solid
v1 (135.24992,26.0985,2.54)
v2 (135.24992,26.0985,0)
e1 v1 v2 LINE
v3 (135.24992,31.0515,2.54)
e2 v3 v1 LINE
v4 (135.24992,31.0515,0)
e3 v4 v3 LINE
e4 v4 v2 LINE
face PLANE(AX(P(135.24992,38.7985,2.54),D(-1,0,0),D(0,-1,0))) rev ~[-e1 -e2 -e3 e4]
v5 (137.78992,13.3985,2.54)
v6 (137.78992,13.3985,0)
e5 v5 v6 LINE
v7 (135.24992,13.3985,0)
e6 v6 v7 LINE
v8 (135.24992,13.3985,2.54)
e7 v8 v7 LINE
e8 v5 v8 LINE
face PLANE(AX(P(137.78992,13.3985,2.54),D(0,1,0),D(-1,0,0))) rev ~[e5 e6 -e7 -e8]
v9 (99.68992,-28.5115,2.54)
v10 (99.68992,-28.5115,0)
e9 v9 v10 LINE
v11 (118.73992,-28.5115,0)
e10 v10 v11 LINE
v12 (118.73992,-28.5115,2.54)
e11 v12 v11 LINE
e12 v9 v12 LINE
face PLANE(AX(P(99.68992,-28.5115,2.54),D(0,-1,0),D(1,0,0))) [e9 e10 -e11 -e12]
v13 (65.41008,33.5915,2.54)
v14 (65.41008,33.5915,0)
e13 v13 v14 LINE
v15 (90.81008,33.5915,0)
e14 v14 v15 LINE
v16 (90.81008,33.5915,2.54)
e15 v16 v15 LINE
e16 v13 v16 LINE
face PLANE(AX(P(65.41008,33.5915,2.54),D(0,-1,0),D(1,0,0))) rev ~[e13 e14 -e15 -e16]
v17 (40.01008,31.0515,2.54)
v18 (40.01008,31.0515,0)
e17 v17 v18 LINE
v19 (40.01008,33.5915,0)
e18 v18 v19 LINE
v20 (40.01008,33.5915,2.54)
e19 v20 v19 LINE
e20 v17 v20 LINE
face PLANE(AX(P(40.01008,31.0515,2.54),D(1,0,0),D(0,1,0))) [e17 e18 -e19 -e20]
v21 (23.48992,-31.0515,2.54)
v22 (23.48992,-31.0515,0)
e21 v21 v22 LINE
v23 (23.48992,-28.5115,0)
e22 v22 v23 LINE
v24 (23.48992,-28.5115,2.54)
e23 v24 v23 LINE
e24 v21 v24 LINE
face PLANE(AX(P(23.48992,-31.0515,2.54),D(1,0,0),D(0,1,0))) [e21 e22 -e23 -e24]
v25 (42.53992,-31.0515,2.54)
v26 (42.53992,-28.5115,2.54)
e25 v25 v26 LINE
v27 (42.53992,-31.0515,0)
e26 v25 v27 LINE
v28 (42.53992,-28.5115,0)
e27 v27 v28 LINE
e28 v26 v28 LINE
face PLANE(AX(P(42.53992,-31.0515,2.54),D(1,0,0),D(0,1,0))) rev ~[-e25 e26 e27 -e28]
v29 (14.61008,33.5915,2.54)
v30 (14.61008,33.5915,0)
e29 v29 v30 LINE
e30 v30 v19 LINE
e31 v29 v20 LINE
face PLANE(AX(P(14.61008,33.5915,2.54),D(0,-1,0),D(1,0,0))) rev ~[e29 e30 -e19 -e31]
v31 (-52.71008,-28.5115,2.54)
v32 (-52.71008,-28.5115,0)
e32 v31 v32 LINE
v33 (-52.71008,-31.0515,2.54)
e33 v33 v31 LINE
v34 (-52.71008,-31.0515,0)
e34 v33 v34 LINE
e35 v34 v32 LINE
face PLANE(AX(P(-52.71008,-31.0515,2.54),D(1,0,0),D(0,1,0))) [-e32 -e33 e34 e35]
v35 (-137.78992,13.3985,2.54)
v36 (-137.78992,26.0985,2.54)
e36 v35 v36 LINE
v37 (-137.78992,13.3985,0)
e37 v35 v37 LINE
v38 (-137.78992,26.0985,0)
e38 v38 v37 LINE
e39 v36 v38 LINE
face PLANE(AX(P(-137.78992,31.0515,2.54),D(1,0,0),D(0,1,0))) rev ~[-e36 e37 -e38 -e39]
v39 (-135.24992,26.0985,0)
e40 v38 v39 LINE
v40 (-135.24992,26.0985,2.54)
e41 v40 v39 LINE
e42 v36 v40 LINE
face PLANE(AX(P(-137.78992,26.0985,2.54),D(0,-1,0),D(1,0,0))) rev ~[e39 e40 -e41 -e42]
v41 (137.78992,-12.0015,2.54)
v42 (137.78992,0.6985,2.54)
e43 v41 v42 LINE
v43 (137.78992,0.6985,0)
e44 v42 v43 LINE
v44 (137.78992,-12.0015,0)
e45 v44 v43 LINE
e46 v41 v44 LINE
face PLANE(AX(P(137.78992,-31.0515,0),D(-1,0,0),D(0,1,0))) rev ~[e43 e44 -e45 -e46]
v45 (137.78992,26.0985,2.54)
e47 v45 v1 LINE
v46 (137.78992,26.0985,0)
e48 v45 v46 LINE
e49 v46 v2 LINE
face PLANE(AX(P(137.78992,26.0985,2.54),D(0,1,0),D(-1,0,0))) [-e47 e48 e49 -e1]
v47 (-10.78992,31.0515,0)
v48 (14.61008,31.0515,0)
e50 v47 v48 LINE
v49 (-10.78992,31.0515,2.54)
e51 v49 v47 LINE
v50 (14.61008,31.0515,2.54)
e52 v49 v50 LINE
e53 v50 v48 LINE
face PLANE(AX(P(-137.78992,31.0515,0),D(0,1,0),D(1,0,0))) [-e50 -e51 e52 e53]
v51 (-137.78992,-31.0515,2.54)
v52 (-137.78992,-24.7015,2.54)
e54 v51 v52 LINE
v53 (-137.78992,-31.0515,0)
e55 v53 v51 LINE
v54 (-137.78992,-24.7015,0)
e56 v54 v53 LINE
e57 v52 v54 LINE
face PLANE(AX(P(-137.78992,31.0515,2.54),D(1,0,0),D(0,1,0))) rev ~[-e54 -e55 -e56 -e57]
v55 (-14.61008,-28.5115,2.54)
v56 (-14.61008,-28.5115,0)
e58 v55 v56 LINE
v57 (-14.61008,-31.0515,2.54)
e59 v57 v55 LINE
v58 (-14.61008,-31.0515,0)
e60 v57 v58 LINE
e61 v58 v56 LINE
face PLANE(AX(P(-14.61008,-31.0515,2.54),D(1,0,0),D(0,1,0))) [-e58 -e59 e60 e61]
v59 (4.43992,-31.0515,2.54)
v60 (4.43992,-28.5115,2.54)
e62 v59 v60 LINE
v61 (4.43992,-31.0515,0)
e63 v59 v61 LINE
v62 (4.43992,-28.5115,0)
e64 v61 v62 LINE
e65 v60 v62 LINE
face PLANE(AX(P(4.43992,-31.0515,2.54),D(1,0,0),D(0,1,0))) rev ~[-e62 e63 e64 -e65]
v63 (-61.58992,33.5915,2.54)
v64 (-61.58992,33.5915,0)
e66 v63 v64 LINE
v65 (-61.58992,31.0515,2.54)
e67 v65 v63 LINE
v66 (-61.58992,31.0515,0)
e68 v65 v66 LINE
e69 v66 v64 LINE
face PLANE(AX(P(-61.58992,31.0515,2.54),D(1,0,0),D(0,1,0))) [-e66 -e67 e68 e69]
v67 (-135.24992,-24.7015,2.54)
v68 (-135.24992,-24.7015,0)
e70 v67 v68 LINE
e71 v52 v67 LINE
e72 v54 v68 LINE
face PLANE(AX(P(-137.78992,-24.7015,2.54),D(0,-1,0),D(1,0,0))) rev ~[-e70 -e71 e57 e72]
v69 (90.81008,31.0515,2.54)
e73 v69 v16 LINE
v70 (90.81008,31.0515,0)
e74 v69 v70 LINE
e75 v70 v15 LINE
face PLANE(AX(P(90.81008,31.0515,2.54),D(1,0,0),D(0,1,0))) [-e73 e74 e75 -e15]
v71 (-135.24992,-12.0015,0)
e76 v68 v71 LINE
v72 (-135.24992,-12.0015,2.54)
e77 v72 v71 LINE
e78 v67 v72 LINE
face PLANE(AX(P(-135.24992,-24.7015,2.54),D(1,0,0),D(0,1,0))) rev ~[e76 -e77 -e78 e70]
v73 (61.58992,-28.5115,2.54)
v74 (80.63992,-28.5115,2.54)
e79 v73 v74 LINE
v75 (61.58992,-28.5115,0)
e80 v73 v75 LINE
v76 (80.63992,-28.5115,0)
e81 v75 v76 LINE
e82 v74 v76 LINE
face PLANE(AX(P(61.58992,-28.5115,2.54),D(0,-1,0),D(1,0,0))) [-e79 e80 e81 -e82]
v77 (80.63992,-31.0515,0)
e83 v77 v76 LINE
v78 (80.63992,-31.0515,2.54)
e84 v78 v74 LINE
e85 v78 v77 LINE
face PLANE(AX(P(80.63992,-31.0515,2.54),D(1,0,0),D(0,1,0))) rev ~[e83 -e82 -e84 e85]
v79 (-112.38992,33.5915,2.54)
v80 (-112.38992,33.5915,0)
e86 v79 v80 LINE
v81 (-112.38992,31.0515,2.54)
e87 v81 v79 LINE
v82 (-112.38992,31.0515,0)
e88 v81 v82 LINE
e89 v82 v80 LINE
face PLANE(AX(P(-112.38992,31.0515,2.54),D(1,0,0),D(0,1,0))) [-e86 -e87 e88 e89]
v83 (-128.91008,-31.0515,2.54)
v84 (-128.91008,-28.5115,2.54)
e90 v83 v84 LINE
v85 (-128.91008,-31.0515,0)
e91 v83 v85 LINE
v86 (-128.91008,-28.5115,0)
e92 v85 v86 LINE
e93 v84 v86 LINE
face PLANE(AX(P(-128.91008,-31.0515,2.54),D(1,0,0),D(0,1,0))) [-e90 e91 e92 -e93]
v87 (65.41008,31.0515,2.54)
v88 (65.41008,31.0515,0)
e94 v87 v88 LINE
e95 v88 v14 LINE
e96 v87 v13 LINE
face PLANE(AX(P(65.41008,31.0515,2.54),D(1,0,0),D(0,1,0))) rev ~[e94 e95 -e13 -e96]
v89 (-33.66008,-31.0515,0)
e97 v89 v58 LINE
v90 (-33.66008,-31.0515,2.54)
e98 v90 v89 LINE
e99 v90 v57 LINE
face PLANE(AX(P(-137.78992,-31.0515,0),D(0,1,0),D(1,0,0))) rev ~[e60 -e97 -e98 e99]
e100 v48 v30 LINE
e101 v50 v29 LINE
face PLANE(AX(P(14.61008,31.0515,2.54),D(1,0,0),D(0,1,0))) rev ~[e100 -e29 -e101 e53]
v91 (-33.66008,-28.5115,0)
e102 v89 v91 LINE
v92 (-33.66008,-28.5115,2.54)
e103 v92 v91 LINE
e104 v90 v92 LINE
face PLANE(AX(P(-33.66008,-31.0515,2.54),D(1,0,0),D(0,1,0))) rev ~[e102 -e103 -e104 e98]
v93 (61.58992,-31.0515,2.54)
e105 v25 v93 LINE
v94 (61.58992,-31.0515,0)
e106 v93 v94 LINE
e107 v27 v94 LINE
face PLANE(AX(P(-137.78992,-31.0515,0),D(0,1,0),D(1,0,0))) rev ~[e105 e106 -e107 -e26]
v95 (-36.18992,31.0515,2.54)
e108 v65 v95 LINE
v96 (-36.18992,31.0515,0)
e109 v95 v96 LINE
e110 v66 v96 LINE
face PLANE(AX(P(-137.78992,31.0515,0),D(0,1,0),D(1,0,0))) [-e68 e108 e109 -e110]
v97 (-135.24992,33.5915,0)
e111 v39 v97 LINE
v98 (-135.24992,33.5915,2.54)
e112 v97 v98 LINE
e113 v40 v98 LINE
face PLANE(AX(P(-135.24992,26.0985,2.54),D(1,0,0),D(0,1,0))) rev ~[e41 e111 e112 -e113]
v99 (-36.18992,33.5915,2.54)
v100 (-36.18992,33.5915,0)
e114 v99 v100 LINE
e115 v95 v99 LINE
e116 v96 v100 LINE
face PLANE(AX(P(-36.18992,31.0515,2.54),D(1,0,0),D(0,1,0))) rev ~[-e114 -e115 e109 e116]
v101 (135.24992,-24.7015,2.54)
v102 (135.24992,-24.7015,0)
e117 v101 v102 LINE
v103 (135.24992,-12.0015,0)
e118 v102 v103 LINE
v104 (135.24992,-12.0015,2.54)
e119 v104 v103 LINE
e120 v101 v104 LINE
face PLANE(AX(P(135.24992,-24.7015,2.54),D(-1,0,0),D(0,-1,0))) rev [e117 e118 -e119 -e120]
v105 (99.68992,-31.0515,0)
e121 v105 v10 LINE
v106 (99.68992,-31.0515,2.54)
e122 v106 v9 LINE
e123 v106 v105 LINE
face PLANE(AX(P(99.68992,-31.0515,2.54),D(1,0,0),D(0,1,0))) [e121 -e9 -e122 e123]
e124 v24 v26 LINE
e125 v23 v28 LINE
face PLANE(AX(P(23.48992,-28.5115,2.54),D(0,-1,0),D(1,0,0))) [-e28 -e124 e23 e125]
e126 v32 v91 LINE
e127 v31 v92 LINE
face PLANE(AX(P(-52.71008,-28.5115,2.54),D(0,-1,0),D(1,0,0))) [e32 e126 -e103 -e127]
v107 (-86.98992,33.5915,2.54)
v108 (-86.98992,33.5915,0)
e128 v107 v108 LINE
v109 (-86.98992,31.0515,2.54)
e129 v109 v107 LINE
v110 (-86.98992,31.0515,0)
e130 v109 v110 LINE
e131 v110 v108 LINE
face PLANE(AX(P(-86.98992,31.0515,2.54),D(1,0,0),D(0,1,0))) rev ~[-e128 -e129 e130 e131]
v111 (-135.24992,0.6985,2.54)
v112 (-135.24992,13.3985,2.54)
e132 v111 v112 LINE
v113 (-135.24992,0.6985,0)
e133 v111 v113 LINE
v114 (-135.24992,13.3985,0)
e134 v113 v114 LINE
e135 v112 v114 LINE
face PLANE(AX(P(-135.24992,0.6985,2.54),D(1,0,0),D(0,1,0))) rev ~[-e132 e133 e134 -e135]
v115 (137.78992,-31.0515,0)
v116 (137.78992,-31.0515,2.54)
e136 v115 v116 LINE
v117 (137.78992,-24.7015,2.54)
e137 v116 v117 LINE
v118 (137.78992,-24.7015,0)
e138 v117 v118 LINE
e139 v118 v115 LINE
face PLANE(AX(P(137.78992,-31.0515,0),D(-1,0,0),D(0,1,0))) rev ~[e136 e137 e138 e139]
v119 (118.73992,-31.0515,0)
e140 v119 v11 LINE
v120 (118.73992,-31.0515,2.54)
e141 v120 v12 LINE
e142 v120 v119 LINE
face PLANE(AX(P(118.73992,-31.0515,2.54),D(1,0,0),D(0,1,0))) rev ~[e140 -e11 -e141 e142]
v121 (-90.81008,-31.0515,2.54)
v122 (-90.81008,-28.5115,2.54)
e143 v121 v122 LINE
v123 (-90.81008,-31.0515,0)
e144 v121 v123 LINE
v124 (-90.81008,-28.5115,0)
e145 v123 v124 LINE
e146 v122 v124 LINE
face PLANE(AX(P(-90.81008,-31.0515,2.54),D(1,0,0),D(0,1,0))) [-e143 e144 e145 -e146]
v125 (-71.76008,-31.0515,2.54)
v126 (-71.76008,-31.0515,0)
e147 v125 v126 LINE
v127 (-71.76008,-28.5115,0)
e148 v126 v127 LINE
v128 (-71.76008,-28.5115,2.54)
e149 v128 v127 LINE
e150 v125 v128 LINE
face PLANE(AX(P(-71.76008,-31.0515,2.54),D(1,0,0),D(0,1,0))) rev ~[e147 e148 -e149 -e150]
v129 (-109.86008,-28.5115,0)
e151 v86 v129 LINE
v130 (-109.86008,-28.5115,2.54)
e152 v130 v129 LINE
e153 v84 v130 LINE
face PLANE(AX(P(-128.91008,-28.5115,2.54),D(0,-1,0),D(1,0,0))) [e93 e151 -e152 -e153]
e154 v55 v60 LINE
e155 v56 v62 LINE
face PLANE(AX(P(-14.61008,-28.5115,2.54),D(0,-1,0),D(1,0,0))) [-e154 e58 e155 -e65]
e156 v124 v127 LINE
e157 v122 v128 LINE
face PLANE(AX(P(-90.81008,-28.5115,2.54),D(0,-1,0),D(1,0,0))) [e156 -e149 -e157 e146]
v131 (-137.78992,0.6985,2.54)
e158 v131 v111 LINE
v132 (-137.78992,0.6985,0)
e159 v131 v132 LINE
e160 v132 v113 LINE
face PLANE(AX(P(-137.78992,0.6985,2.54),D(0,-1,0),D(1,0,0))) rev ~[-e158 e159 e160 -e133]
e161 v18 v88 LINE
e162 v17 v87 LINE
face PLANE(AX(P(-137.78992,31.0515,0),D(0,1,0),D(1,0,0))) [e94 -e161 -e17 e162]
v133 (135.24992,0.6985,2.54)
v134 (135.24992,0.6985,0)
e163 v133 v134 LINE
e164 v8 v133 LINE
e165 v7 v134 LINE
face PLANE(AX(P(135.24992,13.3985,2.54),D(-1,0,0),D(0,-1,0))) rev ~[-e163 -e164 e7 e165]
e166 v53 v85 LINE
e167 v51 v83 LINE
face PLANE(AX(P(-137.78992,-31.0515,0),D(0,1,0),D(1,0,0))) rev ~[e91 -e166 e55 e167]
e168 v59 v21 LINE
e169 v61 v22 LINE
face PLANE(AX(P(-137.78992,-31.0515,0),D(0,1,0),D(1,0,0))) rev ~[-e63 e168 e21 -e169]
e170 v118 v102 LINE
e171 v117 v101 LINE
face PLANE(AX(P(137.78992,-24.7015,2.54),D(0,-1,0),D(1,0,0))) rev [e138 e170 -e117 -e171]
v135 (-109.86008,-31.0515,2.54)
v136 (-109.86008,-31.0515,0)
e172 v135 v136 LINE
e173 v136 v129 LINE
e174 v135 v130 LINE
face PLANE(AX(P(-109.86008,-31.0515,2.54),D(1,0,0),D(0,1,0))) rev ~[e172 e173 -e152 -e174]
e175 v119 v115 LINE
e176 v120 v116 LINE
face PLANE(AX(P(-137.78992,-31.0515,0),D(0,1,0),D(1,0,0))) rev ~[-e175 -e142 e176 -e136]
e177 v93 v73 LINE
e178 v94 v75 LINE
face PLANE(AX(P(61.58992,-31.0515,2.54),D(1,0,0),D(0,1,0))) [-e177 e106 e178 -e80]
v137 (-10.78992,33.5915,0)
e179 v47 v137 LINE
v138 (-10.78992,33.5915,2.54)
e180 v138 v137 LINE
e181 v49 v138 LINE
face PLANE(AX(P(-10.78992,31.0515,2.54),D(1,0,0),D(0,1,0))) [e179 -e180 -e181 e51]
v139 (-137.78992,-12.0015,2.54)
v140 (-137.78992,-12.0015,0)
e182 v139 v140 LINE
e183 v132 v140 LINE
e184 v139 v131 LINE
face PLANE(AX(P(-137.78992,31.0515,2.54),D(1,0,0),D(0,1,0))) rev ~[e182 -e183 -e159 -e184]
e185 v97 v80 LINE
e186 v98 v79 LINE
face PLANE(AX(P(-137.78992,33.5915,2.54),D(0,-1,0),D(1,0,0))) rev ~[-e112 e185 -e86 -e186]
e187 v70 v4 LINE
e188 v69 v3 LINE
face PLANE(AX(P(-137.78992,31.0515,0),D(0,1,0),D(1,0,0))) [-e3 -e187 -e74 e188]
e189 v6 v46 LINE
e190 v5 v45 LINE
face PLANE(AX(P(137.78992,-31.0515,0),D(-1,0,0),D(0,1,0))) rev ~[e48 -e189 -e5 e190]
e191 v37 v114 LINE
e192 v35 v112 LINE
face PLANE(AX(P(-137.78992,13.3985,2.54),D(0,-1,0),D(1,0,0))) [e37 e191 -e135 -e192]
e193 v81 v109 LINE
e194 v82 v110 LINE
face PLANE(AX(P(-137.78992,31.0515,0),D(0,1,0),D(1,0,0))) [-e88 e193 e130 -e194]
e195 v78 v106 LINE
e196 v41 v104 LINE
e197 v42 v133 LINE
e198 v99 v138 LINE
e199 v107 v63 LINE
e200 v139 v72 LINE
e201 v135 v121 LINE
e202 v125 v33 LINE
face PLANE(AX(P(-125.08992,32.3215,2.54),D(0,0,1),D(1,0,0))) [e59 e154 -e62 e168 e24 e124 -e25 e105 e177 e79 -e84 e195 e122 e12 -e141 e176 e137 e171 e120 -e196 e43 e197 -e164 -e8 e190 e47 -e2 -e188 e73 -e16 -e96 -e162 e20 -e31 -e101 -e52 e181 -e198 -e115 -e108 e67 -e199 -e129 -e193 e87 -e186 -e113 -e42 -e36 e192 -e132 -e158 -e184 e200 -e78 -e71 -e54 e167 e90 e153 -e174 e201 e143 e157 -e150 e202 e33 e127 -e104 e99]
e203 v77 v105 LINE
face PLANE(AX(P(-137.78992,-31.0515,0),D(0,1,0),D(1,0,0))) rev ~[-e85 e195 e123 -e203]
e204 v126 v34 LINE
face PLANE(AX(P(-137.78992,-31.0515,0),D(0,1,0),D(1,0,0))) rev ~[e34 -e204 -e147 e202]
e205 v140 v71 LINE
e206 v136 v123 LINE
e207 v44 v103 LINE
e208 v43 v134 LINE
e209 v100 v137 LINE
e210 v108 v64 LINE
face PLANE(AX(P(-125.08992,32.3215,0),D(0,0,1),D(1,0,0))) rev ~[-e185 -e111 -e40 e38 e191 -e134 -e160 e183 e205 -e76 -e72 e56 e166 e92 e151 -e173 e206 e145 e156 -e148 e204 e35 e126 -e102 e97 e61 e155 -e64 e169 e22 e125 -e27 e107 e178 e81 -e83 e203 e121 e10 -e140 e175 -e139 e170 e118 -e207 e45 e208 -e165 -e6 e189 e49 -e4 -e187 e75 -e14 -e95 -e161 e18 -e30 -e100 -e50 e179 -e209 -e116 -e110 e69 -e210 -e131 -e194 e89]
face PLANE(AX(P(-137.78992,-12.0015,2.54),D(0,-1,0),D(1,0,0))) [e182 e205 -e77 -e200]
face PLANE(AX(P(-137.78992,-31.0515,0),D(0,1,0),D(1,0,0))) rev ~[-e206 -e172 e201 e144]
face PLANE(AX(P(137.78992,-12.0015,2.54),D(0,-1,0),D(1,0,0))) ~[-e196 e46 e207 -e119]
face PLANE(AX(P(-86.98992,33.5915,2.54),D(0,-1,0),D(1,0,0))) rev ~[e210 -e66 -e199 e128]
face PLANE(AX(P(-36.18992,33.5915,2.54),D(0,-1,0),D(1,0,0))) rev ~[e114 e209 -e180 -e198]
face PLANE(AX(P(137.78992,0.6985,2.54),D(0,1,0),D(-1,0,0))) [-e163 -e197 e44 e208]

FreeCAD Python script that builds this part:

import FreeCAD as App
import Part
import Sketcher

V = App.Vector
Q = App.Units.Quantity


def add_polygon(sketch, points):
    """Adds a closed chain of lines whose ends are joined by coincident constraints."""
    first, n = sketch.GeometryCount, len(points)
    for a, b in zip(points, points[1:] + points[:1]):
        sketch.addGeometry(Part.LineSegment(App.Vector(*a, 0), App.Vector(*b, 0)), False)
    for i in range(n):
        sketch.addConstraint(Sketcher.Constraint("Coincident", first + i, 2, first + (i + 1) % n, 1))

doc = App.newDocument("Part")
body = doc.addObject("PartDesign::Body", "Body")

sketch1 = body.newObject("Sketcher::SketchObject", "Sketch")
sketch1.AttachmentSupport = (doc.getObject("XY_Plane"), [""])
sketch1.MapMode = "FlatFace"
add_polygon(sketch1, [(-138, 31), (-138, -31), (138, -31), (138, 31)])
sketch1.addConstraint([
    Sketcher.Constraint("Vertical", 0),
    Sketcher.Constraint("Horizontal", 1),
    Sketcher.Constraint("Vertical", 2),
    Sketcher.Constraint("Horizontal", 3),
    Sketcher.Constraint("Symmetric", 0, 2, 2, 2, -1, 1),
    Sketcher.Constraint("DistanceY", 0, 2, 0, 1, Q("2.445 in")),
    Sketcher.Constraint("DistanceX", 1, 1, 1, 2, Q("10.8496 in")),
])
pad1 = body.newObject("PartDesign::Pad", "Pad")
pad1.Profile = sketch1
pad1.Length = Q("0.1 in")

sketch2 = body.newObject("Sketcher::SketchObject", "Sketch001")
sketch2.AttachmentSupport = (doc.getObject("XY_Plane"), [""])
sketch2.MapMode = "FlatFace"
sketch2.AttachmentOffset = App.Placement(V(0, 0, 0.1 * 25.4), App.Rotation())
add_polygon(sketch2, [(-137.8, 33.6), (-137.8, 31.1), (-112.4, 31.1), (-112.4, 33.6)])
sketch2.addConstraint([
    Sketcher.Constraint("Vertical", 0),
    Sketcher.Constraint("Horizontal", 1),
    Sketcher.Constraint("Vertical", 2),
    Sketcher.Constraint("Horizontal", 3),
    Sketcher.Constraint("DistanceX", 1, 1, 1, 2, Q("1 in")),
    Sketcher.Constraint("DistanceY", 0, 2, 0, 1, Q("0.1 in")),
    Sketcher.Constraint("DistanceX", 0, 2, -1, 1, Q("5.4248 in")),
    Sketcher.Constraint("DistanceY", -1, 1, 0, 2, Q("1.2225 in")),
])
pad2 = body.newObject("PartDesign::Pad", "Pad001")
pad2.Profile = sketch2
pad2.Length = Q("0.1 in")
pad2.Reversed = True
doc.recompute()

linearpattern = body.newObject("PartDesign::LinearPattern", "LinearPattern")
linearpattern.Originals = [pad2]
linearpattern.Direction = (doc.getObject("X_Axis"), [""])
linearpattern.Mode = "offset"
linearpattern.Offset = Q("2 in")
linearpattern.Occurrences = 5
body.Tip = linearpattern

sketch3 = body.newObject("Sketcher::SketchObject", "Sketch002")
sketch3.AttachmentSupport = (doc.getObject("XY_Plane"), [""])
sketch3.MapMode = "FlatFace"
sketch3.AttachmentOffset = App.Placement(V(0, 0, 0.1 * 25.4), App.Rotation())
add_polygon(sketch3, [(-137.8, -12), (-137.8, -24.7), (-135.2, -24.7), (-135.2, -12)])
sketch3.addConstraint([
    Sketcher.Constraint("Vertical", 0),
    Sketcher.Constraint("Horizontal", 1),
    Sketcher.Constraint("Vertical", 2),
    Sketcher.Constraint("Horizontal", 3),
    Sketcher.Constraint("DistanceX", 1, 1, 1, 2, Q("0.1 in")),
    Sketcher.Constraint("DistanceY", 0, 2, 0, 1, Q("0.5 in")),
    Sketcher.Constraint("DistanceX", 0, 2, -1, 1, Q("5.4248 in")),
    Sketcher.Constraint("DistanceY", 0, 2, -1, 1, Q("0.9725 in")),
])
pocket1 = body.newObject("PartDesign::Pocket", "Pocket")
pocket1.Profile = sketch3
pocket1.Type = "ThroughAll"
doc.recompute()

linearpattern2 = body.newObject("PartDesign::LinearPattern", "LinearPattern001")
linearpattern2.Originals = [pocket1]
linearpattern2.Direction = (doc.getObject("Y_Axis"), [""])
linearpattern2.Mode = "offset"
linearpattern2.Offset = Q("1 in")
linearpattern2.Occurrences = 3
body.Tip = linearpattern2
doc.recompute()

mirrored = body.newObject("PartDesign::Mirrored", "Mirrored")
mirrored.Originals = [pocket1]
mirrored.MirrorPlane = (doc.getObject("YZ_Plane"), [""])
body.Tip = mirrored

sketch4 = body.newObject("Sketcher::SketchObject", "Sketch003")
sketch4.AttachmentSupport = (doc.getObject("XY_Plane"), [""])
sketch4.MapMode = "FlatFace"
sketch4.AttachmentOffset = App.Placement(V(0, 0, 0.1 * 25.4), App.Rotation())
add_polygon(sketch4, [(137.8, 0.7), (137.8, 13.4), (135.2, 13.4), (135.2, 0.7)])
sketch4.addConstraint([
    Sketcher.Constraint("Vertical", 0),
    Sketcher.Constraint("Horizontal", 1),
    Sketcher.Constraint("Vertical", 2),
    Sketcher.Constraint("Horizontal", 3),
    Sketcher.Constraint("DistanceX", 1, 2, 1, 1, Q("0.1 in")),
    Sketcher.Constraint("DistanceY", 0, 1, 0, 2, Q("0.5 in")),
    Sketcher.Constraint("DistanceX", -1, 1, 0, 2, Q("5.4248 in")),
    Sketcher.Constraint("DistanceY", -1, 1, 0, 2, Q("0.5275 in")),
])
pocket2 = body.newObject("PartDesign::Pocket", "Pocket001")
pocket2.Profile = sketch4
pocket2.Type = "ThroughAll"

sketch5 = body.newObject("Sketcher::SketchObject", "Sketch004")
sketch5.AttachmentSupport = (doc.getObject("XY_Plane"), [""])
sketch5.MapMode = "FlatFace"
sketch5.AttachmentOffset = App.Placement(V(0, 0, 0.1 * 25.4), App.Rotation())
add_polygon(sketch5, [(137.8, 26.1), (137.8, 38.8), (135.2, 38.8), (135.2, 26.1)])
sketch5.addConstraint([
    Sketcher.Constraint("Vertical", 0),
    Sketcher.Constraint("Horizontal", 1),
    Sketcher.Constraint("Vertical", 2),
    Sketcher.Constraint("Horizontal", 3),
    Sketcher.Constraint("DistanceX", 1, 2, 1, 1, Q("0.1 in")),
    Sketcher.Constraint("DistanceY", 0, 1, 0, 2, Q("0.5 in")),
    Sketcher.Constraint("DistanceX", -1, 1, 0, 2, Q("5.4248 in")),
    Sketcher.Constraint("DistanceY", -1, 1, 0, 2, Q("1.5275 in")),
])
pocket3 = body.newObject("PartDesign::Pocket", "Pocket002")
pocket3.Profile = sketch5
pocket3.Type = "ThroughAll"

sketch6 = body.newObject("Sketcher::SketchObject", "Sketch005")
sketch6.AttachmentSupport = (doc.getObject("XY_Plane"), [""])
sketch6.MapMode = "FlatFace"
sketch6.AttachmentOffset = App.Placement(V(0, 0, 0.1 * 25.4), App.Rotation())
add_polygon(sketch6, [(-128.9, -28.5), (-128.9, -31.1), (-109.9, -31.1), (-109.9, -28.5)])
sketch6.addConstraint([
    Sketcher.Constraint("Vertical", 0),
    Sketcher.Constraint("Horizontal", 1),
    Sketcher.Constraint("Vertical", 2),
    Sketcher.Constraint("Horizontal", 3),
    Sketcher.Constraint("DistanceY", 0, 2, 0, 1, Q("0.1 in")),
    Sketcher.Constraint("DistanceX", 1, 1, 1, 2, Q("0.75 in")),
    Sketcher.Constraint("DistanceX", 0, 2, -1, 1, Q("5.0752 in")),
    Sketcher.Constraint("DistanceY", 0, 2, -1, 1, Q("1.2225 in")),
])
pocket4 = body.newObject("PartDesign::Pocket", "Pocket003")
pocket4.Profile = sketch6
pocket4.Type = "ThroughAll"
doc.recompute()

linearpattern3 = body.newObject("PartDesign::LinearPattern", "LinearPattern002")
linearpattern3.Originals = [pocket4]
linearpattern3.Direction = (doc.getObject("X_Axis"), [""])
linearpattern3.Mode = "offset"
linearpattern3.Offset = Q("1.5 in")
linearpattern3.Occurrences = 8
body.Tip = linearpattern3

doc.recompute()
